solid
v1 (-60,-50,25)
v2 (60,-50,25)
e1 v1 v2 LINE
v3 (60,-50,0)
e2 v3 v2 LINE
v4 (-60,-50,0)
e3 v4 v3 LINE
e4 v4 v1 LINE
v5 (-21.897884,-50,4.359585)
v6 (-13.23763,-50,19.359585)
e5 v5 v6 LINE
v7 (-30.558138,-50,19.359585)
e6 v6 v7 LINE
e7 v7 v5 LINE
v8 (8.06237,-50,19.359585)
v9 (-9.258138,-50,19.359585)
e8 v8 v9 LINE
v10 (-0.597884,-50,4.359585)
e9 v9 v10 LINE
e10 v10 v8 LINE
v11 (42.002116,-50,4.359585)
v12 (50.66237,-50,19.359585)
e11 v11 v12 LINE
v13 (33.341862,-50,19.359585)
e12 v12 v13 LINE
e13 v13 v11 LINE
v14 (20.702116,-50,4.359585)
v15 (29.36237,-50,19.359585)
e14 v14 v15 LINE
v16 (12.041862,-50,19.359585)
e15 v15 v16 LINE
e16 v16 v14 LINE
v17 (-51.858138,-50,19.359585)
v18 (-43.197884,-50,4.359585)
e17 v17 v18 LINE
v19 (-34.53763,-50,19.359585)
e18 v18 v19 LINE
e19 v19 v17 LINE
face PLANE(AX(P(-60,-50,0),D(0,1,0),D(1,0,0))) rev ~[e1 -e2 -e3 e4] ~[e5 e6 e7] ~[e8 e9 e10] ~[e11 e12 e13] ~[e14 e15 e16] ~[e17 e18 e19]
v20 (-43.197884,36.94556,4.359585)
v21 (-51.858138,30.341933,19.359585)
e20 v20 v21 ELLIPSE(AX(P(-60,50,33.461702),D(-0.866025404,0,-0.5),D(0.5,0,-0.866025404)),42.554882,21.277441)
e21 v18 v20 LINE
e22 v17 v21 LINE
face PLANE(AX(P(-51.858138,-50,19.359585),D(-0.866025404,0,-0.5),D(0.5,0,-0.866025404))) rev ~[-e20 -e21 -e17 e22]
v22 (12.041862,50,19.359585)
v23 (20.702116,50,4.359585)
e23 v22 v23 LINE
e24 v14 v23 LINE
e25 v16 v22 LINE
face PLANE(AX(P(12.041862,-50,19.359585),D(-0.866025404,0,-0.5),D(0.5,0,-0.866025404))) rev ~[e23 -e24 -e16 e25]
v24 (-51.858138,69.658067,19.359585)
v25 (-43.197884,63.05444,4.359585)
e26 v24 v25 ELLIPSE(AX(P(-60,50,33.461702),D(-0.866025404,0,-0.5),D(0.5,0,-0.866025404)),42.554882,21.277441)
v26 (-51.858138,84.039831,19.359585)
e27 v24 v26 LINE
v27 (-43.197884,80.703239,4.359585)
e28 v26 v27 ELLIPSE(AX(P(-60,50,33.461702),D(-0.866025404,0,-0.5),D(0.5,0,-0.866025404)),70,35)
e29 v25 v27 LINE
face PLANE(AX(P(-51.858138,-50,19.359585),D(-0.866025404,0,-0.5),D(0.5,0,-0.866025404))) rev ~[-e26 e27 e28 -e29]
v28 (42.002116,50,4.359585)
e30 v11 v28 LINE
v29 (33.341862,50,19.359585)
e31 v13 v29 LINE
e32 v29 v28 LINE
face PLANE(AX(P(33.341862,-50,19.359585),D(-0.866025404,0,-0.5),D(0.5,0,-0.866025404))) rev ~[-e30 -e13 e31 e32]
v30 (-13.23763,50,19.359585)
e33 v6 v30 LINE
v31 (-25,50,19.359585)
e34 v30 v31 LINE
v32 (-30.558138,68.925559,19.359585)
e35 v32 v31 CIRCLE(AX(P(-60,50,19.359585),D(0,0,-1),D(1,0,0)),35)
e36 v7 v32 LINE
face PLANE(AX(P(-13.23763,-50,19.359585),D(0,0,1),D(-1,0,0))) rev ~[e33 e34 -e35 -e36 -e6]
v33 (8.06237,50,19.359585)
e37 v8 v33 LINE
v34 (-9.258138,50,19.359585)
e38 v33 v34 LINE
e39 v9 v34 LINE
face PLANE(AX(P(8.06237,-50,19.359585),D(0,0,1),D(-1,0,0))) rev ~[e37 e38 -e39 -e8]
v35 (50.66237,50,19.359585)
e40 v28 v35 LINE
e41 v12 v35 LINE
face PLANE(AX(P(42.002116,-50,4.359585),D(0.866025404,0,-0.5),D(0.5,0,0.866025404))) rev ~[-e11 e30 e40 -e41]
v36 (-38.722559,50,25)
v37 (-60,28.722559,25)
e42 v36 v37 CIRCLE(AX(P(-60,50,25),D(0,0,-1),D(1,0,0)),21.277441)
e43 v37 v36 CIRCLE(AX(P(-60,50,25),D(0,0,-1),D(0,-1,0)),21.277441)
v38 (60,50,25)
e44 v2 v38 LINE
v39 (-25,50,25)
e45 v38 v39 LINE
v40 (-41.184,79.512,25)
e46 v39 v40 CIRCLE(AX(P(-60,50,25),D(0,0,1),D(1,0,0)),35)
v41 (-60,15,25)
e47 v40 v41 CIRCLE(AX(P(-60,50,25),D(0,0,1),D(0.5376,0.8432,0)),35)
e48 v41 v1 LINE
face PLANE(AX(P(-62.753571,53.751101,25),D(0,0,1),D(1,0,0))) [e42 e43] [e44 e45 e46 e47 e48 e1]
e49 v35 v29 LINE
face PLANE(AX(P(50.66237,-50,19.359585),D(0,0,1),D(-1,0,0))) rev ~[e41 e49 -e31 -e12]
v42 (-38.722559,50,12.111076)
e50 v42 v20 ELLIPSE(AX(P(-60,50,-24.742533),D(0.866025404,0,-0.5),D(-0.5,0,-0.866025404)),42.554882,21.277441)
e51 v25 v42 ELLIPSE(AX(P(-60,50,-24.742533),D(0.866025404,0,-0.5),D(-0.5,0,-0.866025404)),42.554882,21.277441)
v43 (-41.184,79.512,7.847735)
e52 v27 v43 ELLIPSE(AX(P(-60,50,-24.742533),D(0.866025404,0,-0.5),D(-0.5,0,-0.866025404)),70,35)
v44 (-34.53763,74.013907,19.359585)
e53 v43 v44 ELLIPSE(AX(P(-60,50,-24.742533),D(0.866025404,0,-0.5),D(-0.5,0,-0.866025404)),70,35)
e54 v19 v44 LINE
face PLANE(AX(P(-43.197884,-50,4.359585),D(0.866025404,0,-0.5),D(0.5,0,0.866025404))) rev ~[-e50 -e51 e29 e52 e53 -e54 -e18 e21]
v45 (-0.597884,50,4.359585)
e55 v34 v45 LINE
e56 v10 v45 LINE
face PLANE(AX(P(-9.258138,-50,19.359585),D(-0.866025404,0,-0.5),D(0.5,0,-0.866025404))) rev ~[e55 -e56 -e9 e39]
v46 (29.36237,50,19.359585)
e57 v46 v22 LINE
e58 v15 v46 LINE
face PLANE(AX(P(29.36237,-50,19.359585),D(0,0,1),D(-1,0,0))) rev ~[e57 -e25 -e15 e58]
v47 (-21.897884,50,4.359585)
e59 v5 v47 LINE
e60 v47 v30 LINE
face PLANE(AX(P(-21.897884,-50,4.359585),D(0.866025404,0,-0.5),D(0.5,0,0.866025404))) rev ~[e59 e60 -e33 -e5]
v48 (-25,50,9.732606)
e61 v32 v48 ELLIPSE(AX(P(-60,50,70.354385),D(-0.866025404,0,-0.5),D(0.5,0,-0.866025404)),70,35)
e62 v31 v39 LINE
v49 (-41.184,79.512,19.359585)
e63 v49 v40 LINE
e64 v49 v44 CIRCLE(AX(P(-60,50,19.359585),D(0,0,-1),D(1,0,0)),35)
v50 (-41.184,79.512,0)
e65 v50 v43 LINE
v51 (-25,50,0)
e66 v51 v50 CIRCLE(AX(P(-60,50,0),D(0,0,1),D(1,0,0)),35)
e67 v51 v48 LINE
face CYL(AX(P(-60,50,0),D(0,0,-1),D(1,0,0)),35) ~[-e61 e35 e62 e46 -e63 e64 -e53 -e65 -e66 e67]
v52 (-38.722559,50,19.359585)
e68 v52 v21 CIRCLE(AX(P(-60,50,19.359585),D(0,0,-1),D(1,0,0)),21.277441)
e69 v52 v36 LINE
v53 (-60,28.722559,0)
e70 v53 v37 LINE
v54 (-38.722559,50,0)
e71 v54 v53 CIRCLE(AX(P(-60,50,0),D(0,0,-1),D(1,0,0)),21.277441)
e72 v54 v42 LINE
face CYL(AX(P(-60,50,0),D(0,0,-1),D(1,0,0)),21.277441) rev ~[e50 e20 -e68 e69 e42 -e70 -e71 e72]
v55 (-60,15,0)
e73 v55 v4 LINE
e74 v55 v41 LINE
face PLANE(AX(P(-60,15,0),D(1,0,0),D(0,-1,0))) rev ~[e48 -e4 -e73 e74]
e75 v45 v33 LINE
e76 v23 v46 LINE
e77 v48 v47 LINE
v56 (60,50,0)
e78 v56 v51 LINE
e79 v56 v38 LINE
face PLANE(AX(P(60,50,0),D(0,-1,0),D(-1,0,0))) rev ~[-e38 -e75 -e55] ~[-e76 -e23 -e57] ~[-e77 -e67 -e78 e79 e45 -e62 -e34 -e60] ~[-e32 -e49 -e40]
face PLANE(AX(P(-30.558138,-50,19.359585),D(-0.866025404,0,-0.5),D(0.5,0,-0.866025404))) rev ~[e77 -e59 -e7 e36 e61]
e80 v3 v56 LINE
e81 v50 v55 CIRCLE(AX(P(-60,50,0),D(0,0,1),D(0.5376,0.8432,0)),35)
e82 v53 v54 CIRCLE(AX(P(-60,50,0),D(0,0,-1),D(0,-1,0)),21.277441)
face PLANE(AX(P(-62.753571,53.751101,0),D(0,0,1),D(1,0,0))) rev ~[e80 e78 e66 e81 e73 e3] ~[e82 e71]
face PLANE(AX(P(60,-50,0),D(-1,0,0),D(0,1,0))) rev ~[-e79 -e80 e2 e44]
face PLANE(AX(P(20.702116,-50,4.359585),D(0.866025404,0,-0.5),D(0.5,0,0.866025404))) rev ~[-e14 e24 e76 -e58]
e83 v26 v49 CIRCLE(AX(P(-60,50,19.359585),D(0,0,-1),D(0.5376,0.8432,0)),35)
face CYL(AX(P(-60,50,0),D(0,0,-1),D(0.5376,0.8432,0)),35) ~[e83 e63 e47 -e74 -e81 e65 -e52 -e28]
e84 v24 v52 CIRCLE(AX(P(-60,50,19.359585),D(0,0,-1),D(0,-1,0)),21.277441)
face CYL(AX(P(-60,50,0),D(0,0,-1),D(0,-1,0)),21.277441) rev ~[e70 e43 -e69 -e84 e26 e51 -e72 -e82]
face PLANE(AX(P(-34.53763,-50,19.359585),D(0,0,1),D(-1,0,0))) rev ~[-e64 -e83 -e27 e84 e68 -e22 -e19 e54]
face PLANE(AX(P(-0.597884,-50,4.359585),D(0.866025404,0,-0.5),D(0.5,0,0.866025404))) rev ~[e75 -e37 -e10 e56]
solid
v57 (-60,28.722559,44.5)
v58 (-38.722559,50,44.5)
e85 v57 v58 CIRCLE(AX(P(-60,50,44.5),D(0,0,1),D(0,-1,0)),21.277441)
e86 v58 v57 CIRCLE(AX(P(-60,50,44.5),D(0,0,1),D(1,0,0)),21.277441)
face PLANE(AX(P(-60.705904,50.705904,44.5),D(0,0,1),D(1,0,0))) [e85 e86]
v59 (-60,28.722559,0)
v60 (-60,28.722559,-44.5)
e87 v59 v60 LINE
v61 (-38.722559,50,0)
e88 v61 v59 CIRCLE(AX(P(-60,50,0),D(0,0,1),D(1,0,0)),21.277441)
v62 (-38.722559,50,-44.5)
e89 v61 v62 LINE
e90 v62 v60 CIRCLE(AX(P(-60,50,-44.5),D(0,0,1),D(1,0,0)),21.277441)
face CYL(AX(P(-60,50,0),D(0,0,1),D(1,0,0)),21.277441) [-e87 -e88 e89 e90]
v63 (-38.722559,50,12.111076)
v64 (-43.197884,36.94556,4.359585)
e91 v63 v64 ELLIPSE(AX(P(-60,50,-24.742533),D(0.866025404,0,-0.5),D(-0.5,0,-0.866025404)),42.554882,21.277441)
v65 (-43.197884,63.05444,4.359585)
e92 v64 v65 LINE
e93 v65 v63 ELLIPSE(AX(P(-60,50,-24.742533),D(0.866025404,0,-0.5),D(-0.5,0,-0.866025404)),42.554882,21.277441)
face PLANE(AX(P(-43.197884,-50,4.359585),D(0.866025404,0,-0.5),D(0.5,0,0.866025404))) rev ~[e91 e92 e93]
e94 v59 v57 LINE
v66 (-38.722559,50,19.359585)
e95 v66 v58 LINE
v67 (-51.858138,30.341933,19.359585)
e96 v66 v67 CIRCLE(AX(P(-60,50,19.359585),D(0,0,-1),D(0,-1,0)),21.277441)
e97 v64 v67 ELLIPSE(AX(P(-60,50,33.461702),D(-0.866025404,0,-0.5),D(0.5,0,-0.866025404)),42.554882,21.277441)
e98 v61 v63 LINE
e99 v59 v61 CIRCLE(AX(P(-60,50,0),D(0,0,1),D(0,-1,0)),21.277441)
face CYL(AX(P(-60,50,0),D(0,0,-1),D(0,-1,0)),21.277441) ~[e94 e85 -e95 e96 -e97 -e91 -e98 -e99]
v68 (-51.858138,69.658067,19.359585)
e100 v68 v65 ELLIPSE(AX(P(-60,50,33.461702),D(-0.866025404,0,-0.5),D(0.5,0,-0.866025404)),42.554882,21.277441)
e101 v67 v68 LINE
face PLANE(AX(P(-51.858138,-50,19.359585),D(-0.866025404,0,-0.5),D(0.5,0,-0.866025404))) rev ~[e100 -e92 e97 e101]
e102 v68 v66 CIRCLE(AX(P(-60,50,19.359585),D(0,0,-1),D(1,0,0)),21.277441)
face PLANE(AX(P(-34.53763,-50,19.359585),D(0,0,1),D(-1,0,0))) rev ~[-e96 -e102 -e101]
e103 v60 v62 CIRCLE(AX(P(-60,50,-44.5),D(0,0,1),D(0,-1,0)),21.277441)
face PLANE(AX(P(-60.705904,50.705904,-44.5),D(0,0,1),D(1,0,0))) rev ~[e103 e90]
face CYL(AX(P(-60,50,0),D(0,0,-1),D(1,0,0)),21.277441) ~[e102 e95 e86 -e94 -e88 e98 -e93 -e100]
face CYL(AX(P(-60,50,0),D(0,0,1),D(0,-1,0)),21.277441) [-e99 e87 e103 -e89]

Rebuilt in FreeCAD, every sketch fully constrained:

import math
import FreeCAD as App
import Part
import Sketcher
from FreeCAD import Vector
Q = App.Units.Quantity

doc = App.newDocument("Part")
params = doc.addObject("Spreadsheet::Sheet", "Params")
for row, (alias, value) in enumerate([
    ("sketch1_radius", "35 mm"),
    ("sketch1_width", "120 mm"),
    ("sketch1_height", "65 mm"),
    ("pad1_length", "25 mm"),
    ("pad2_length", "89 mm"),
    ("pad3_length", "135.001 mm"),
], start=1):
    params.set(f"A{row}", alias)
    params.set(f"B{row}", "=" + value)
    params.setAlias(f"B{row}", alias)

body = doc.addObject("PartDesign::Body", "Body")

sketch1 = body.newObject("Sketcher::SketchObject", "Sketch")
sketch1.AttachmentSupport = (doc.getObject("XY_Plane"), [""])
sketch1.MapMode = "FlatFace"
sketch1.addGeometry([
    Part.ArcOfCircle(Part.Circle(Vector(-60, 50, 0), Vector(0, 0, 1), 35), math.radians(57), math.radians(270)),
    Part.LineSegment(Vector(-60, 15, 0), Vector(-60, -50, 0)),
    Part.LineSegment(Vector(-60, -50, 0), Vector(60, -50, 0)),
    Part.LineSegment(Vector(60, -50, 0), Vector(60, 50, 0)),
    Part.LineSegment(Vector(60, 50, 0), Vector(-25, 50, 0)),
    Part.ArcOfCircle(Part.Circle(Vector(-60, 50, 0), Vector(0, 0, 1), 35), math.radians(0), math.radians(57)),
    Part.ArcOfCircle(Part.Circle(Vector(-60, 50, 0), Vector(0, 0, 1), 21), math.radians(0), math.radians(270)),
    Part.ArcOfCircle(Part.Circle(Vector(-60, 50, 0), Vector(0, 0, 1), 21), math.radians(-90), math.radians(0)),
], False)
sketch1.addConstraint([
    Sketcher.Constraint("Coincident", 0, 2, 1, 1),
    Sketcher.Constraint("Coincident", 1, 2, 2, 1),
    Sketcher.Constraint("Coincident", 2, 2, 3, 1),
    Sketcher.Constraint("Coincident", 3, 2, 4, 1),
    Sketcher.Constraint("Coincident", 4, 2, 5, 1),
    Sketcher.Constraint("Tangent", 5, 2, 0, 1),
    Sketcher.Constraint("Tangent", 6, 1, 7, 2),
    Sketcher.Constraint("Coincident", 7, 1, 6, 2),
    Sketcher.Constraint("Vertical", 1),
    Sketcher.Constraint("Horizontal", 2),
    Sketcher.Constraint("Vertical", 3),
    Sketcher.Constraint("Horizontal", 4),
    Sketcher.Constraint("Coincident", 6, 3, 0, 3),
    Sketcher.Constraint("Equal", 0, 5),
    Sketcher.Constraint("Symmetric", 1, 2, 3, 2, -1, 1),
    Sketcher.Constraint("Horizontal", 7, 3, 3, 2),
    Sketcher.Constraint("Horizontal", 4, 2, 6, 1),
    Sketcher.Constraint("Vertical", 7, 3, 0, 2),
    Sketcher.Constraint("Vertical", 1, 2, 7, 1),
    Sketcher.Constraint("Radius", 0, Q("35 mm")),
    Sketcher.Constraint("DistanceX", 2, 1, 2, 2, Q("120 mm")),
    Sketcher.Constraint("DistanceY", 1, 2, 1, 1, Q("65 mm")),
    Sketcher.Constraint("Radius", 6, Q("21.277441 mm")),
    Sketcher.Constraint("DistanceX", 5, 2, -1, 1, Q("41.184 mm")),
])
sketch1.setExpression("Constraints[19]", "Params.sketch1_radius")
sketch1.setExpression("Constraints[20]", "Params.sketch1_width")
sketch1.setExpression("Constraints[21]", "Params.sketch1_height")
pad1 = body.newObject("PartDesign::Pad", "Pad")
pad1.Profile = sketch1
pad1.setExpression("Length", "Params.pad1_length")
body2 = doc.addObject("PartDesign::Body", "Body001")

sketch2 = body2.newObject("Sketcher::SketchObject", "Sketch001")
sketch2.AttachmentSupport = (doc.getObject("XY_Plane001"), [""])
sketch2.MapMode = "FlatFace"
sketch2.addGeometry([
    Part.ArcOfCircle(Part.Circle(Vector(-60, 50, 0), Vector(0, 0, 1), 21), math.radians(0), math.radians(270)),
    Part.ArcOfCircle(Part.Circle(Vector(-60, 50, 0), Vector(0, 0, 1), 21), math.radians(-90), math.radians(0)),
], False)
sketch2.addConstraint([
    Sketcher.Constraint("Tangent", 0, 1, 1, 2),
    Sketcher.Constraint("Coincident", 1, 1, 0, 2),
    Sketcher.Constraint("Horizontal", 1, 3, 0, 1),
    Sketcher.Constraint("Vertical", 0, 3, 1, 1),
    Sketcher.Constraint("DistanceX", 0, 3, -1, 1, Q("60 mm")),
    Sketcher.Constraint("DistanceY", -1, 1, 0, 3, Q("50 mm")),
    Sketcher.Constraint("Radius", 0, Q("21.277441 mm")),
])
pad2 = body2.newObject("PartDesign::Pad", "Pad001")
pad2.Profile = sketch2
pad2.setExpression("Length", "Params.pad2_length")
pad2.Midplane = True
body3 = doc.addObject("PartDesign::Body", "Body002")
body3.AllowCompound = True

sketch3 = body3.newObject("Sketcher::SketchObject", "Sketch002")
sketch3.AttachmentSupport = (doc.getObject("XZ_Plane002"), [""])
sketch3.MapMode = "FlatFace"
sketch3.AttachmentOffset = App.Placement(Vector(0, 0, 50), App.Rotation())
sketch3.addGeometry([
    Part.LineSegment(Vector(-43, 4, 0), Vector(-35, 19, 0)),
    Part.LineSegment(Vector(-35, 19, 0), Vector(-52, 19, 0)),
    Part.LineSegment(Vector(-52, 19, 0), Vector(-43, 4, 0)),
    Part.LineSegment(Vector(-22, 4, 0), Vector(-13, 19, 0)),
    Part.LineSegment(Vector(-13, 19, 0), Vector(-31, 19, 0)),
    Part.LineSegment(Vector(-31, 19, 0), Vector(-22, 4, 0)),
    Part.LineSegment(Vector(-1, 4, 0), Vector(8, 19, 0)),
    Part.LineSegment(Vector(8, 19, 0), Vector(-9, 19, 0)),
    Part.LineSegment(Vector(-9, 19, 0), Vector(-1, 4, 0)),
    Part.LineSegment(Vector(21, 4, 0), Vector(29, 19, 0)),
    Part.LineSegment(Vector(29, 19, 0), Vector(12, 19, 0)),
    Part.LineSegment(Vector(12, 19, 0), Vector(21, 4, 0)),
    Part.LineSegment(Vector(42, 4, 0), Vector(51, 19, 0)),
    Part.LineSegment(Vector(51, 19, 0), Vector(33, 19, 0)),
    Part.LineSegment(Vector(33, 19, 0), Vector(42, 4, 0)),
], False)
sketch3.addConstraint([
    Sketcher.Constraint("Coincident", 0, 2, 1, 1),
    Sketcher.Constraint("Coincident", 1, 2, 2, 1),
    Sketcher.Constraint("Coincident", 2, 2, 0, 1),
    Sketcher.Constraint("Coincident", 3, 2, 4, 1),
    Sketcher.Constraint("Coincident", 4, 2, 5, 1),
    Sketcher.Constraint("Coincident", 5, 2, 3, 1),
    Sketcher.Constraint("Coincident", 6, 2, 7, 1),
    Sketcher.Constraint("Coincident", 7, 2, 8, 1),
    Sketcher.Constraint("Coincident", 8, 2, 6, 1),
    Sketcher.Constraint("Coincident", 9, 2, 10, 1),
    Sketcher.Constraint("Coincident", 10, 2, 11, 1),
    Sketcher.Constraint("Coincident", 11, 2, 9, 1),
    Sketcher.Constraint("Coincident", 12, 2, 13, 1),
    Sketcher.Constraint("Coincident", 13, 2, 14, 1),
    Sketcher.Constraint("Coincident", 14, 2, 12, 1),
    Sketcher.Constraint("Horizontal", 1),
    Sketcher.Constraint("Horizontal", 4),
    Sketcher.Constraint("Horizontal", 7),
    Sketcher.Constraint("Horizontal", 10),
    Sketcher.Constraint("Horizontal", 13),
    Sketcher.Constraint("Parallel", 0, 3),
    Sketcher.Constraint("Parallel", 2, 5),
    Sketcher.Constraint("Parallel", 3, 6),
    Sketcher.Constraint("Parallel", 5, 8),
    Sketcher.Constraint("Parallel", 6, 9),
    Sketcher.Constraint("Parallel", 8, 11),
    Sketcher.Constraint("Parallel", 9, 12),
    Sketcher.Constraint("Parallel", 11, 14),
    Sketcher.Constraint("Horizontal", 1, 2, 3, 2),
    Sketcher.Constraint("Horizontal", 2, 2, 5, 2),
    Sketcher.Constraint("Horizontal", 4, 2, 6, 2),
    Sketcher.Constraint("Horizontal", 5, 2, 8, 2),
    Sketcher.Constraint("Horizontal", 7, 2, 9, 2),
    Sketcher.Constraint("Horizontal", 8, 2, 11, 2),
    Sketcher.Constraint("Horizontal", 10, 2, 12, 2),
    Sketcher.Constraint("Horizontal", 11, 2, 14, 2),
    Sketcher.Constraint("Equal", 0, 2),
    Sketcher.Constraint("Angle", 0, Q("60 deg")),
    Sketcher.Constraint("DistanceY", 2, 2, 0, 2, Q("15 mm")),
    Sketcher.Constraint("DistanceX", 0, 2, 3, 2, Q("21.3 mm")),
    Sketcher.Constraint("DistanceX", 3, 2, 6, 2, Q("21.3 mm")),
    Sketcher.Constraint("DistanceX", 6, 2, 9, 2, Q("21.3 mm")),
    Sketcher.Constraint("DistanceX", 9, 2, 12, 2, Q("21.3 mm")),
    Sketcher.Constraint("DistanceX", 0, 2, -1, 1, Q("34.53763 mm")),
    Sketcher.Constraint("DistanceY", -1, 1, 0, 2, Q("19.359585 mm")),
])
pad3 = body3.newObject("PartDesign::Pad", "Pad002")
pad3.Profile = sketch3
pad3.setExpression("Length", "Params.pad3_length")
pad3.Reversed = True
doc.recompute()

body4 = doc.addObject("PartDesign::Body", "Body003")
body4.BaseFeature = body3
boolean = body.newObject("PartDesign::Boolean", "Boolean")
boolean.Type = "Cut"
boolean.addObjects([body4])
doc.recompute()

boolean2 = body2.newObject("PartDesign::Boolean", "Boolean001")
boolean2.Type = "Cut"
boolean2.addObjects([body3])

doc.recompute()
